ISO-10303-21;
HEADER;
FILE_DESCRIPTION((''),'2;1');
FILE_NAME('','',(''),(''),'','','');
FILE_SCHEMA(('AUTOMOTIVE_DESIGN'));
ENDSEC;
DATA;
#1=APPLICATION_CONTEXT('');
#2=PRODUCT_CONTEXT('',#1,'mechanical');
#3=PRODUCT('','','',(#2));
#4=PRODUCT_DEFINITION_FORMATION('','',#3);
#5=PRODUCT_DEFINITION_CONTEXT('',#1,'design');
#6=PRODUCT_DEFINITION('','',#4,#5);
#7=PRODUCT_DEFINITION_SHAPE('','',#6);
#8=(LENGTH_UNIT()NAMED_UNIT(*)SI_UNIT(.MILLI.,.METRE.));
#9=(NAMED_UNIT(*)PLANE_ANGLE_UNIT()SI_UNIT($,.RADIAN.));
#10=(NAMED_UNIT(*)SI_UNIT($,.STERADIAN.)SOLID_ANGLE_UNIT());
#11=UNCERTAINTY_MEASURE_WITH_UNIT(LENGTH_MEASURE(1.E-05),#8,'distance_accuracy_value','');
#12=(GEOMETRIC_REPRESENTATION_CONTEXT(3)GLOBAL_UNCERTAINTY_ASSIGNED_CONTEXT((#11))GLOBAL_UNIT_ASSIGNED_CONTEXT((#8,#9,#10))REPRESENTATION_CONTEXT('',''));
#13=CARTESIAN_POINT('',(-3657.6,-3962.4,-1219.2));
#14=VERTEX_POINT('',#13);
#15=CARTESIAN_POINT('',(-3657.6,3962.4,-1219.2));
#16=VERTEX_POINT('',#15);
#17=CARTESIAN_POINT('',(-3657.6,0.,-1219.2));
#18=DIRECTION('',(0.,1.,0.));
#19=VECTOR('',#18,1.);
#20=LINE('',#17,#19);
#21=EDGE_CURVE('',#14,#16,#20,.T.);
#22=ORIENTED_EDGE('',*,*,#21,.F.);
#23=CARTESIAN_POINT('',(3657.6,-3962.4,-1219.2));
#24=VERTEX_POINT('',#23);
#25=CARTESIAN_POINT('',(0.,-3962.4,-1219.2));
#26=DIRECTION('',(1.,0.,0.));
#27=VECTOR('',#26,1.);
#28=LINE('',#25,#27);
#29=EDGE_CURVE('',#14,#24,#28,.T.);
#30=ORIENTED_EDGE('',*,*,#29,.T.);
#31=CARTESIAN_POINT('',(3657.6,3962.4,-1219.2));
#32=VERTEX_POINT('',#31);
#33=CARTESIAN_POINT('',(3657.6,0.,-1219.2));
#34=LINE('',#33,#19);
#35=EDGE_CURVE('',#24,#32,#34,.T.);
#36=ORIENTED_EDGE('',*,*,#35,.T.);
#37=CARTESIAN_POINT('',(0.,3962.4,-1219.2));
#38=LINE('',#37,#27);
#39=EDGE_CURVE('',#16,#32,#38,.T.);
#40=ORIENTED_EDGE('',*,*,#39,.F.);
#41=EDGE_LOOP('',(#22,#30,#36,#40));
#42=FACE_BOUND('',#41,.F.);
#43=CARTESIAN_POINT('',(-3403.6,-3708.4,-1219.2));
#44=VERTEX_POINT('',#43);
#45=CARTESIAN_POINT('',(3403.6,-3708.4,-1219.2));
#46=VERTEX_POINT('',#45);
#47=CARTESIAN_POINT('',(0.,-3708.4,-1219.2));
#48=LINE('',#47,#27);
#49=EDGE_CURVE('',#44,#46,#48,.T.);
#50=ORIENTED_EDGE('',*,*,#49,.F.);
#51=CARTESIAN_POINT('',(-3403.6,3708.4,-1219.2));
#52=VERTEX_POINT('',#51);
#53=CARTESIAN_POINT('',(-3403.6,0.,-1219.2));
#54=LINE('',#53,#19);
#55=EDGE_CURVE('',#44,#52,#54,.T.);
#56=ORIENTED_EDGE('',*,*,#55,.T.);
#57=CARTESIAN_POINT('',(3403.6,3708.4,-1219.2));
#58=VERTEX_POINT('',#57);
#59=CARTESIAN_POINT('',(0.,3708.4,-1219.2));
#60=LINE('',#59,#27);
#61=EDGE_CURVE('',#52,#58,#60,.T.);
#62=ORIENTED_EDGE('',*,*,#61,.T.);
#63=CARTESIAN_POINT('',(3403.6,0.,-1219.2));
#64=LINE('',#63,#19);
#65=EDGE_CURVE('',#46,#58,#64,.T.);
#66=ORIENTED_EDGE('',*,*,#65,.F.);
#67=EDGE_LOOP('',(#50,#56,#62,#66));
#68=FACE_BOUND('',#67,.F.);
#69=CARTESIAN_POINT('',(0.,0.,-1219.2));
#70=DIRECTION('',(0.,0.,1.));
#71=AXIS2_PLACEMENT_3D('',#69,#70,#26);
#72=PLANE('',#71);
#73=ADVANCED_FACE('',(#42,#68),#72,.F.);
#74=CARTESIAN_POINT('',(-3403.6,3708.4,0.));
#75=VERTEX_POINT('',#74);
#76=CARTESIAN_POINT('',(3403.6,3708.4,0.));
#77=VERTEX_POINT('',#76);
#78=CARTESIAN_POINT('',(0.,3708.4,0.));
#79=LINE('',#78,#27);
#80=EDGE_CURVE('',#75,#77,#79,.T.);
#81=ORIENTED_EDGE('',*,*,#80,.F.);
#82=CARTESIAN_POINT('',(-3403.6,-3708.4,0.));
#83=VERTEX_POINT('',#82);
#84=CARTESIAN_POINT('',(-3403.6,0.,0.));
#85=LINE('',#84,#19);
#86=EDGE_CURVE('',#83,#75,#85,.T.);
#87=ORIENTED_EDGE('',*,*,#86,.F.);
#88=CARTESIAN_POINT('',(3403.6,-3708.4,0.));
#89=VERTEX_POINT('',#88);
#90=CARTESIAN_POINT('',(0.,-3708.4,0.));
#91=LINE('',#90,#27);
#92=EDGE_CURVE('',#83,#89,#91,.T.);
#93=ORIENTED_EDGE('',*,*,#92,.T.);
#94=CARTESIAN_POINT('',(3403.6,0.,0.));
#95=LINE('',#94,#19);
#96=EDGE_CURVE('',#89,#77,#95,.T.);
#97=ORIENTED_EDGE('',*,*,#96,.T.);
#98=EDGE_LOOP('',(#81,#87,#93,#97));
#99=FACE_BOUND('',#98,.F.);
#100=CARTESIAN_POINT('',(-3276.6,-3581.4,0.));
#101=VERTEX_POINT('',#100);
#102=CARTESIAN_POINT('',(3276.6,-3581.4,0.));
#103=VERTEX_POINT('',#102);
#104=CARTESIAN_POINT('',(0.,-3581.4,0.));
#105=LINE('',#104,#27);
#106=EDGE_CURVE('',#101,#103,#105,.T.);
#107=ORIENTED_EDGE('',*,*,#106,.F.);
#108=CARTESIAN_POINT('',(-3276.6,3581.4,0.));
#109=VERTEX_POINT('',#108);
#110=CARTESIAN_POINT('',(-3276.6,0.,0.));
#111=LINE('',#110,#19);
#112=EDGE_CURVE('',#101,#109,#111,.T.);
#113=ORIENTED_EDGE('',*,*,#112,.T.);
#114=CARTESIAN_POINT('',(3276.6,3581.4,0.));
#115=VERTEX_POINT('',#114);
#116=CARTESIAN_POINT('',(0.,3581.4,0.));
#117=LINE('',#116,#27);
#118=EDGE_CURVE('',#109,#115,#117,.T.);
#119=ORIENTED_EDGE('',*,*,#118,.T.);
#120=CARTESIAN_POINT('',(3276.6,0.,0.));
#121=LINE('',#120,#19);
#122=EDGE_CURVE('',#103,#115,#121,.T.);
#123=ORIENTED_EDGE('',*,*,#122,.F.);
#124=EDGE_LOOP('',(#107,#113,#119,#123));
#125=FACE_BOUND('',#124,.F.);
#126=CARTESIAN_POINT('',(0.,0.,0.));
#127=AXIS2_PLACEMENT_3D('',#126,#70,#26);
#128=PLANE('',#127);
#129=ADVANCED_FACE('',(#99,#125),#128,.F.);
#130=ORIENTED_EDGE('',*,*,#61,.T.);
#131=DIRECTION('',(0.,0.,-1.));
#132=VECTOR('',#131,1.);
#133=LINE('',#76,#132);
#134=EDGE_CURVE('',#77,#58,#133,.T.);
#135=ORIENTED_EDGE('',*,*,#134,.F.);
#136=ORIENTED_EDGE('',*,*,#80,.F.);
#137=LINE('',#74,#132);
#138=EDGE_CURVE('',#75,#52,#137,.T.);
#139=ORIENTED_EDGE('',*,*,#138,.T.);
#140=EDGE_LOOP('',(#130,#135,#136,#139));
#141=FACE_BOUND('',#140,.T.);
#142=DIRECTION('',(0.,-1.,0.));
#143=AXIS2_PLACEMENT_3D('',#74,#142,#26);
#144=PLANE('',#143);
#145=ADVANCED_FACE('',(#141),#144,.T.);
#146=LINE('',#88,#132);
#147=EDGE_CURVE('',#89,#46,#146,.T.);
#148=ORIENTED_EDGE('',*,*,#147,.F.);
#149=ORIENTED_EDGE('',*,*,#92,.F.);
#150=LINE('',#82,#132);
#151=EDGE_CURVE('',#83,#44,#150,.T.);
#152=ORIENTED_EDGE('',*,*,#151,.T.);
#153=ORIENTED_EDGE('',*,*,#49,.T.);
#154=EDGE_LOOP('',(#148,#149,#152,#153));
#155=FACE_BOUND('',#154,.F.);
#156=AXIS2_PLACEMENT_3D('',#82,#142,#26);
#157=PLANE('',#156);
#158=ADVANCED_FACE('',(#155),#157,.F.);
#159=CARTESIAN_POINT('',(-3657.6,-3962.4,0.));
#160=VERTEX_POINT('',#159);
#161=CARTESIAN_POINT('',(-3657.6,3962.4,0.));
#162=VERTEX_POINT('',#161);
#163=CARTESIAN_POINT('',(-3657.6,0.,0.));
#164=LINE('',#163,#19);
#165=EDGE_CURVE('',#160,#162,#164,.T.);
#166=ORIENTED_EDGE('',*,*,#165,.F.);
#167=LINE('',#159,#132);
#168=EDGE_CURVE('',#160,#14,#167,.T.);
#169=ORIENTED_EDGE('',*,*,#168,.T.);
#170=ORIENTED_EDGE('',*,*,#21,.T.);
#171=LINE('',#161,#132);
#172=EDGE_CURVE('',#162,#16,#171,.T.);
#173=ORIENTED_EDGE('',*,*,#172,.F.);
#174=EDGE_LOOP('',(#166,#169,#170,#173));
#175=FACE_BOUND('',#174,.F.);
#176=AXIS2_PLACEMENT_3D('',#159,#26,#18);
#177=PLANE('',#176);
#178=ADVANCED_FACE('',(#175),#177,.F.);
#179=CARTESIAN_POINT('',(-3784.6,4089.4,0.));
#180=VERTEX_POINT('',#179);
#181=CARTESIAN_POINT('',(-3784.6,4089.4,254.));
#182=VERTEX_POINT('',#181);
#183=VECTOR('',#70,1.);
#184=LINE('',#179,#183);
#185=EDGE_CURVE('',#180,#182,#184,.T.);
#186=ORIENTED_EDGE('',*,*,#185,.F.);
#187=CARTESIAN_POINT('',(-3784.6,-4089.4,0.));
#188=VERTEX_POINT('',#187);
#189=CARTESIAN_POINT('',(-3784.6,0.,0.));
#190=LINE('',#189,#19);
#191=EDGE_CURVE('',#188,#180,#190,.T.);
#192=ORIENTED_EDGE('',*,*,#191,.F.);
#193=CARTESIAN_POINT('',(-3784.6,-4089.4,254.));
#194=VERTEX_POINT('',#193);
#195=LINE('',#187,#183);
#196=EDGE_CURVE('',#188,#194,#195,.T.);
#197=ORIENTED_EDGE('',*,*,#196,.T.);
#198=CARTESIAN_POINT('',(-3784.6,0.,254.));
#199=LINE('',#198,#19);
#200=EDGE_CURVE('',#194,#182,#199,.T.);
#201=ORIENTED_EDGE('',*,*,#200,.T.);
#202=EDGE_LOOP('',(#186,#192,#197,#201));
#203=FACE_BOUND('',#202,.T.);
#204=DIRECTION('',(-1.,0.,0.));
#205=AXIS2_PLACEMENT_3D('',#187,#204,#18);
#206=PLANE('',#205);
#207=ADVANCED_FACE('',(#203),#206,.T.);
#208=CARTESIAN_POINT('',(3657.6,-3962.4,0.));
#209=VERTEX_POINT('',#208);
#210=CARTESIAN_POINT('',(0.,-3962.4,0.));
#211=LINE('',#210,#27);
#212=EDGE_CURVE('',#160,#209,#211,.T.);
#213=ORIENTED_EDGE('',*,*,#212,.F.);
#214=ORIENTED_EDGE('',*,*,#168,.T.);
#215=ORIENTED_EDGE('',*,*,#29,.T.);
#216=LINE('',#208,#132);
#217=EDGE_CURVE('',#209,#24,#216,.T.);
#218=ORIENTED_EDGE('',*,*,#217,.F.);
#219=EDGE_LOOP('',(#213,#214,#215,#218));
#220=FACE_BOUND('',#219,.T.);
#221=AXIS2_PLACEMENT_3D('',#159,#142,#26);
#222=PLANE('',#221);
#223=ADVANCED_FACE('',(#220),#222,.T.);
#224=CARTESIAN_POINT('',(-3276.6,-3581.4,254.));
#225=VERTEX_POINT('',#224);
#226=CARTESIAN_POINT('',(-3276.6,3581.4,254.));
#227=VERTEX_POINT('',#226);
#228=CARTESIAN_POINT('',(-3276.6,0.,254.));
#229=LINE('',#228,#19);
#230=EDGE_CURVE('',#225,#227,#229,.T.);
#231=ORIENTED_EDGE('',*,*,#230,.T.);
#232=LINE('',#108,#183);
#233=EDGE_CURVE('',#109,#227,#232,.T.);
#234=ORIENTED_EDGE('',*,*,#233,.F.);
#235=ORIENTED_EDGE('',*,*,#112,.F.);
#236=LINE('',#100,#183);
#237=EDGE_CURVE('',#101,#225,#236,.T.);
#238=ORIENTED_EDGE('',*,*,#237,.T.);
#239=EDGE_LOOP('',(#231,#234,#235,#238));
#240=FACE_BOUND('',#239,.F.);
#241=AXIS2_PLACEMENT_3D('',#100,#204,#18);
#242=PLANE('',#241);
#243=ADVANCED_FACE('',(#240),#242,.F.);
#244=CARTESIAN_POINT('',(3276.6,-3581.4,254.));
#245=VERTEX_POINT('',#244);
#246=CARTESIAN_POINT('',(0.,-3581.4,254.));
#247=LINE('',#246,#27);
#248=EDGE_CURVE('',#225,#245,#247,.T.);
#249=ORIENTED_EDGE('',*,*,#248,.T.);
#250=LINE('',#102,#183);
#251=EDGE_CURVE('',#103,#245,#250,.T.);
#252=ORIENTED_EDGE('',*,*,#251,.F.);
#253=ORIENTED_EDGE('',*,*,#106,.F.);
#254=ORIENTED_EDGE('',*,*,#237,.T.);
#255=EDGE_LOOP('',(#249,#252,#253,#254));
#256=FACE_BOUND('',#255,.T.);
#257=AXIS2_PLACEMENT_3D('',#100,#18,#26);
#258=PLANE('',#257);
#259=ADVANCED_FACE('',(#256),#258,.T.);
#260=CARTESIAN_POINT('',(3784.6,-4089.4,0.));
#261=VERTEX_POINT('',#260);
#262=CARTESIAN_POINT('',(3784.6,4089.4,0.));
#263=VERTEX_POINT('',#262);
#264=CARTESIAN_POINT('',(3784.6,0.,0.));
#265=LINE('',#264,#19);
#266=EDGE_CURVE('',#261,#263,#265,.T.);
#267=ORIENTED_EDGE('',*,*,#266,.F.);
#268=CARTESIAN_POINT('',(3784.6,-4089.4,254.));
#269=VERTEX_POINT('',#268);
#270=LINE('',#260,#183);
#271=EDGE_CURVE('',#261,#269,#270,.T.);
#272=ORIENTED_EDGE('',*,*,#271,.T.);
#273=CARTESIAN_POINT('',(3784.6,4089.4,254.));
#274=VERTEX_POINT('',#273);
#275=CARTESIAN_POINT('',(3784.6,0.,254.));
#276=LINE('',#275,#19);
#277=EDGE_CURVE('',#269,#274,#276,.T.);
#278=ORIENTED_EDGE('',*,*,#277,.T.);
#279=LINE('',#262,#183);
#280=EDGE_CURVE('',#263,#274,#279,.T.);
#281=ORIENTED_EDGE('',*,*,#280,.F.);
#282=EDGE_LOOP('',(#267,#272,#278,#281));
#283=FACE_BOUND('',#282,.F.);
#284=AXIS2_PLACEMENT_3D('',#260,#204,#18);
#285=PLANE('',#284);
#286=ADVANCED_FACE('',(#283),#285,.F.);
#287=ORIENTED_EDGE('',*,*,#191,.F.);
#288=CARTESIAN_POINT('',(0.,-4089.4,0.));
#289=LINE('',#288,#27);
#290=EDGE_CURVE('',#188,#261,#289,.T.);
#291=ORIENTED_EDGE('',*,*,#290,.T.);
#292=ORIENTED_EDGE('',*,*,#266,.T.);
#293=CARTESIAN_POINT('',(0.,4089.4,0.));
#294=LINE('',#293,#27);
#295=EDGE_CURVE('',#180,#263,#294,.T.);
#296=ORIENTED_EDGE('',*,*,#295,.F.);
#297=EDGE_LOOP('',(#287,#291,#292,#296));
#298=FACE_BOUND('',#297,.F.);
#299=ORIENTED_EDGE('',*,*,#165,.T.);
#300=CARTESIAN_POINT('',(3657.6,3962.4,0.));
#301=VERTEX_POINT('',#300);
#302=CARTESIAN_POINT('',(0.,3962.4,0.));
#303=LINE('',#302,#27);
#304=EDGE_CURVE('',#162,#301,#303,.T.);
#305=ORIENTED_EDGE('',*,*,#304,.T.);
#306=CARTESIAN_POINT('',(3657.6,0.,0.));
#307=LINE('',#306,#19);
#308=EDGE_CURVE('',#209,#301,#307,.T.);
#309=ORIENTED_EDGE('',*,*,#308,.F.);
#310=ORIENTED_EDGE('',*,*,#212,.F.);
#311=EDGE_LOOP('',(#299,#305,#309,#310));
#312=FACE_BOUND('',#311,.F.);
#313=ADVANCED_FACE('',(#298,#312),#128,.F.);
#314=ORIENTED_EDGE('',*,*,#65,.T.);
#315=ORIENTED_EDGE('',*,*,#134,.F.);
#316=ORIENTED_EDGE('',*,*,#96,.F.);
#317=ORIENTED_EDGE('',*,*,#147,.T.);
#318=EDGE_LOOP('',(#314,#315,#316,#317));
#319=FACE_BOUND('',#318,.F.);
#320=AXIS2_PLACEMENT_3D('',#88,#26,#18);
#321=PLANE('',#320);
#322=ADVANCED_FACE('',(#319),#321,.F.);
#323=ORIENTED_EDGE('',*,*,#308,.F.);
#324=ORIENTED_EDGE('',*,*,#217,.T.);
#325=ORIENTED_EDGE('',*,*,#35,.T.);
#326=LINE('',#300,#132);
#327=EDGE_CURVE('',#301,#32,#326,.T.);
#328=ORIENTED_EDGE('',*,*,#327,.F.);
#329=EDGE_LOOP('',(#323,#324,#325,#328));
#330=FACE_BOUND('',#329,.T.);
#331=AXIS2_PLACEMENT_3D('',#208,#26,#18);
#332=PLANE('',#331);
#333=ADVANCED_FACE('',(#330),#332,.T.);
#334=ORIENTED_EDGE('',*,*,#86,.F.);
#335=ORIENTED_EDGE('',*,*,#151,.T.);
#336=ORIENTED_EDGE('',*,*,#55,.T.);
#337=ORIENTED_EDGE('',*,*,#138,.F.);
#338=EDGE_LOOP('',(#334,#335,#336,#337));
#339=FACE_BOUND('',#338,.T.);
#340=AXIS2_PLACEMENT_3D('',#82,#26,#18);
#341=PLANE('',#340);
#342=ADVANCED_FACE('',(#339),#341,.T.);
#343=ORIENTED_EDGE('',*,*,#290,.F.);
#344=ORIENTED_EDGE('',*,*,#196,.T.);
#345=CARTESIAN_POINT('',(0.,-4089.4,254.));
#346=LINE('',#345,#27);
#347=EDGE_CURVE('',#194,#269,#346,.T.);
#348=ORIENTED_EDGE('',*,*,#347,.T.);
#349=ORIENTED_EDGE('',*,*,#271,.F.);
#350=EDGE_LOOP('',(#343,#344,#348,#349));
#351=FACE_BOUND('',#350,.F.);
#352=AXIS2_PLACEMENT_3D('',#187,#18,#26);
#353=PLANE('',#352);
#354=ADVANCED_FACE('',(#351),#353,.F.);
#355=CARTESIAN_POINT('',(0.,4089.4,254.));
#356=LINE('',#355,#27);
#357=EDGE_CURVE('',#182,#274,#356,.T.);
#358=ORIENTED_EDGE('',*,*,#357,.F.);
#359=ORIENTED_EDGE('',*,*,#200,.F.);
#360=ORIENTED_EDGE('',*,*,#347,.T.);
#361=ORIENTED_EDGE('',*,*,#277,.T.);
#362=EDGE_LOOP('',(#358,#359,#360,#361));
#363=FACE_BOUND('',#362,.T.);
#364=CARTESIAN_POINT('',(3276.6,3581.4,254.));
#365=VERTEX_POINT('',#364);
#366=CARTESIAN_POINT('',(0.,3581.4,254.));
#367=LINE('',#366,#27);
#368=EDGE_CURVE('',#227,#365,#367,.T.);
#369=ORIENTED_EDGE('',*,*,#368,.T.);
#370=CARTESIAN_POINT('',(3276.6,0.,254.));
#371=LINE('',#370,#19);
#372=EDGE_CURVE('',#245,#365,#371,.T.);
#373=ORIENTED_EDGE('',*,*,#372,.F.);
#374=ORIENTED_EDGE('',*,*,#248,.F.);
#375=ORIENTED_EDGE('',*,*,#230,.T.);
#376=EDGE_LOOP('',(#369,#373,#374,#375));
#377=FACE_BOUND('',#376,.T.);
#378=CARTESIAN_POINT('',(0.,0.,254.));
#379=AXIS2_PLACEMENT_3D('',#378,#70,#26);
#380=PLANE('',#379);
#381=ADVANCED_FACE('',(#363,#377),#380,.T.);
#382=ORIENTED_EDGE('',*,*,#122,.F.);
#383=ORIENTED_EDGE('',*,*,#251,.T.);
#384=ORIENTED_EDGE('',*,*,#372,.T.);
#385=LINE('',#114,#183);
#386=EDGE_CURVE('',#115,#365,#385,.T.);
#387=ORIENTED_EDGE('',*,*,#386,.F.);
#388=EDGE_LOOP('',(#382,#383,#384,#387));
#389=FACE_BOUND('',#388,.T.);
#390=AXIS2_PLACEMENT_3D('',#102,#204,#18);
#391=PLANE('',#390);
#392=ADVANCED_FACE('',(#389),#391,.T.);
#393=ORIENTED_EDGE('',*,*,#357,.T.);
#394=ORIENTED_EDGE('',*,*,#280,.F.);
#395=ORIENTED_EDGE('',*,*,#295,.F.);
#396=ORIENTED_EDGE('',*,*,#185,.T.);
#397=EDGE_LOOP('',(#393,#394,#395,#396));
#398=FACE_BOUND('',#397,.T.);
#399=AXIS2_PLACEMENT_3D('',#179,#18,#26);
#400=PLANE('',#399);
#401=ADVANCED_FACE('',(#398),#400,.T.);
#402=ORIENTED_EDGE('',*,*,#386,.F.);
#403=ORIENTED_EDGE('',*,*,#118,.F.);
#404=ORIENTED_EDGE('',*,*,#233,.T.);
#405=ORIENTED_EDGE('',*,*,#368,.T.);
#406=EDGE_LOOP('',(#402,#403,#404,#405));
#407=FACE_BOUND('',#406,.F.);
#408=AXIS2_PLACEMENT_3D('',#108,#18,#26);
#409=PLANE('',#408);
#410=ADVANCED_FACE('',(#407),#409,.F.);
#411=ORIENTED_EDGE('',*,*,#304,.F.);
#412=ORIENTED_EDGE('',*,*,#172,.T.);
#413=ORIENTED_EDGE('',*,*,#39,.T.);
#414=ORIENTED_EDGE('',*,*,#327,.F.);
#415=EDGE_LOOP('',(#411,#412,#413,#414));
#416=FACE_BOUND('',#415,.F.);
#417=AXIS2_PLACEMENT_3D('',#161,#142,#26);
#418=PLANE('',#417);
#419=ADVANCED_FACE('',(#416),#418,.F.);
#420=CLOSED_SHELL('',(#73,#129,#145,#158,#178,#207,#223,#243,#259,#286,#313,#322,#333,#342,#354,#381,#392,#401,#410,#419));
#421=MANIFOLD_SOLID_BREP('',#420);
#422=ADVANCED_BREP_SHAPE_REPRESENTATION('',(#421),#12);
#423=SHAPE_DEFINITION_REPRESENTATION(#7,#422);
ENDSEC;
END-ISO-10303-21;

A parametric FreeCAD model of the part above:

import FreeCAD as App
import Part
import Sketcher

V = App.Vector
Q = App.Units.Quantity

doc = App.newDocument("Part")
body = doc.addObject("PartDesign::Body", "Body")

# Sketch on XY plane
sketch1 = body.newObject("Sketcher::SketchObject", "Sketch")
sketch1.AttachmentSupport = (doc.getObject("XY_Plane"), [""])
sketch1.MapMode = "FlatFace"
sketch1.addGeometry([
    Part.LineSegment(V(-3658, 3962, 0), V(-3658, -3962, 0)),  # 0
    Part.LineSegment(V(-3658, -3962, 0), V(3658, -3962, 0)),  # 1
    Part.LineSegment(V(3658, -3962, 0), V(3658, 3962, 0)),  # 2
    Part.LineSegment(V(3658, 3962, 0), V(-3658, 3962, 0)),  # 3
    Part.LineSegment(V(3404, -3708, 0), V(-3404, -3708, 0)),  # 4
    Part.LineSegment(V(-3404, -3708, 0), V(-3404, 3708, 0)),  # 5
    Part.LineSegment(V(-3404, 3708, 0), V(3404, 3708, 0)),  # 6
    Part.LineSegment(V(3404, 3708, 0), V(3404, -3708, 0)),  # 7
], False)
sketch1.addConstraint([
    Sketcher.Constraint("Coincident", 0, 2, 1, 1),
    Sketcher.Constraint("Coincident", 1, 2, 2, 1),
    Sketcher.Constraint("Coincident", 2, 2, 3, 1),
    Sketcher.Constraint("Coincident", 3, 2, 0, 1),
    Sketcher.Constraint("Coincident", 4, 2, 5, 1),
    Sketcher.Constraint("Coincident", 5, 2, 6, 1),
    Sketcher.Constraint("Coincident", 6, 2, 7, 1),
    Sketcher.Constraint("Coincident", 7, 2, 4, 1),
    Sketcher.Constraint("Vertical", 0),
    Sketcher.Constraint("Horizontal", 1),
    Sketcher.Constraint("Vertical", 2),
    Sketcher.Constraint("Horizontal", 3),
    Sketcher.Constraint("Horizontal", 4),
    Sketcher.Constraint("Vertical", 5),
    Sketcher.Constraint("Horizontal", 6),
    Sketcher.Constraint("Vertical", 7),
    Sketcher.Constraint("Symmetric", 0, 2, 2, 2, -1, 1),
    Sketcher.Constraint("Symmetric", 4, 2, 6, 2, -1, 1),
    Sketcher.Constraint("DistanceX", 1, 1, 1, 2, Q("288 in")),
    Sketcher.Constraint("DistanceX", 4, 2, 4, 1, Q("268 in")),
    Sketcher.Constraint("DistanceY", 0, 2, 0, 1, Q("312 in")),
    Sketcher.Constraint("DistanceY", 5, 1, 5, 2, Q("292 in")),
])
pad1 = body.newObject("PartDesign::Pad", "Pad")
pad1.Profile = sketch1
pad1.Length = Q("48 in")
pad1.Reversed = True

# Sketch on XY plane
sketch2 = body.newObject("Sketcher::SketchObject", "Sketch001")
sketch2.AttachmentSupport = (doc.getObject("XY_Plane"), [""])
sketch2.MapMode = "FlatFace"
sketch2.addGeometry([
    Part.LineSegment(V(-3785, 4089, 0), V(-3785, -4089, 0)),  # 0
    Part.LineSegment(V(-3785, -4089, 0), V(3785, -4089, 0)),  # 1
    Part.LineSegment(V(3785, -4089, 0), V(3785, 4089, 0)),  # 2
    Part.LineSegment(V(3785, 4089, 0), V(-3785, 4089, 0)),  # 3
    Part.LineSegment(V(3277, -3581, 0), V(-3277, -3581, 0)),  # 4
    Part.LineSegment(V(-3277, -3581, 0), V(-3277, 3581, 0)),  # 5
    Part.LineSegment(V(-3277, 3581, 0), V(3277, 3581, 0)),  # 6
    Part.LineSegment(V(3277, 3581, 0), V(3277, -3581, 0)),  # 7
], False)
sketch2.addConstraint([
    Sketcher.Constraint("Coincident", 0, 2, 1, 1),
    Sketcher.Constraint("Coincident", 1, 2, 2, 1),
    Sketcher.Constraint("Coincident", 2, 2, 3, 1),
    Sketcher.Constraint("Coincident", 3, 2, 0, 1),
    Sketcher.Constraint("Coincident", 4, 2, 5, 1),
    Sketcher.Constraint("Coincident", 5, 2, 6, 1),
    Sketcher.Constraint("Coincident", 6, 2, 7, 1),
    Sketcher.Constraint("Coincident", 7, 2, 4, 1),
    Sketcher.Constraint("Vertical", 0),
    Sketcher.Constraint("Horizontal", 1),
    Sketcher.Constraint("Vertical", 2),
    Sketcher.Constraint("Horizontal", 3),
    Sketcher.Constraint("Horizontal", 4),
    Sketcher.Constraint("Vertical", 5),
    Sketcher.Constraint("Horizontal", 6),
    Sketcher.Constraint("Vertical", 7),
    Sketcher.Constraint("Symmetric", 0, 2, 2, 2, -1, 1),
    Sketcher.Constraint("Symmetric", 4, 2, 6, 2, -1, 1),
    Sketcher.Constraint("DistanceX", 1, 1, 1, 2, Q("298 in")),
    Sketcher.Constraint("DistanceX", 4, 2, 4, 1, Q("258 in")),
    Sketcher.Constraint("DistanceY", 0, 2, 0, 1, Q("322 in")),
    Sketcher.Constraint("DistanceY", 5, 1, 5, 2, Q("282 in")),
])
pad2 = body.newObject("PartDesign::Pad", "Pad001")
pad2.Profile = sketch2
pad2.Length = Q("10 in")

doc.recompute()
